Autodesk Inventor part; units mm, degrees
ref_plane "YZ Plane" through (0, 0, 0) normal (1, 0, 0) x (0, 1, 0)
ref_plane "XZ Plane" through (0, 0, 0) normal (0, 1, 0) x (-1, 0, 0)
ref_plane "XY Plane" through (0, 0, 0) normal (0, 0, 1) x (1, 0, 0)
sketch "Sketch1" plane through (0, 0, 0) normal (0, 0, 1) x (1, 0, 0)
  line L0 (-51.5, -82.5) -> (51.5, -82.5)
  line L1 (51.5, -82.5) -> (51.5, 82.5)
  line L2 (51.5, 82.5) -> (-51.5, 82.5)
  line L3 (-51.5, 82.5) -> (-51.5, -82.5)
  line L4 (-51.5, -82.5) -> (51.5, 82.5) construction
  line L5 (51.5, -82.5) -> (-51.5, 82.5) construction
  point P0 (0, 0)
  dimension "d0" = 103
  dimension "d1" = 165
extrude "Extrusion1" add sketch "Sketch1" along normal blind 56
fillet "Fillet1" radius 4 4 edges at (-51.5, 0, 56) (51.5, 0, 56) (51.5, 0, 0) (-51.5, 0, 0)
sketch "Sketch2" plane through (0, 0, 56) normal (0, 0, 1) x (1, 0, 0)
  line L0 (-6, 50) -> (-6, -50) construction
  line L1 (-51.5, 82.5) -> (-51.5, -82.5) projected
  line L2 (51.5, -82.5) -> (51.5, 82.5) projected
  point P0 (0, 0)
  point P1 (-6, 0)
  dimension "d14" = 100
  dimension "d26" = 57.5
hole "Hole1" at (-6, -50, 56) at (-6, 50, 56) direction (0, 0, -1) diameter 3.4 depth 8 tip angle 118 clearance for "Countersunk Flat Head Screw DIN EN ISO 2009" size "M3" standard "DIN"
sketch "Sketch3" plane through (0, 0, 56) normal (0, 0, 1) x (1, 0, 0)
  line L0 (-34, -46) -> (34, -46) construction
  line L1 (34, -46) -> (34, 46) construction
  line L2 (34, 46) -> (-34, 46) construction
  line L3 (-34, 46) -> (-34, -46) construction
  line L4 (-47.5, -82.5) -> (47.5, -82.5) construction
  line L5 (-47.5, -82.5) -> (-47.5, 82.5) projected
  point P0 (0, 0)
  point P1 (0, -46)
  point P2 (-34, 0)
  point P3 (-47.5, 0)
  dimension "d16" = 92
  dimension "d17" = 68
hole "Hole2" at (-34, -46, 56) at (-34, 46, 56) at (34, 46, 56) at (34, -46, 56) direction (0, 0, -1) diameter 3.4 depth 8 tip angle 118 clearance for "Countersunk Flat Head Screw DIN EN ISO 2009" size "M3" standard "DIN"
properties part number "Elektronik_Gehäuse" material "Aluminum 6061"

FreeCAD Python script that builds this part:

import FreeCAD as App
import Part
import Sketcher


def edges_at(feature, points):
    """Names of the edges that pass closest to the given points."""
    edges = feature.Shape.Edges
    near = lambda p: min(range(len(edges)), key=lambda i: edges[i].distToShape(Part.Vertex(*p))[0])
    return sorted({f"Edge{near(p) + 1}" for p in points})


def add_polygon(sketch, points):
    """Adds a closed chain of lines whose ends are joined by coincident constraints."""
    first, n = sketch.GeometryCount, len(points)
    for a, b in zip(points, points[1:] + points[:1]):
        sketch.addGeometry(Part.LineSegment(App.Vector(*a, 0), App.Vector(*b, 0)), False)
    for i in range(n):
        sketch.addConstraint(Sketcher.Constraint("Coincident", first + i, 2, first + (i + 1) % n, 1))

doc = App.newDocument("Part")
body = doc.addObject("PartDesign::Body", "Body")

sketch1 = doc.addObject("Sketcher::SketchObject", "Sketch")
body.addObject(sketch1)
sketch1.AttachmentSupport = (doc.XY_Plane, [""])
sketch1.MapMode = "FlatFace"
add_polygon(sketch1, [(-51.5, 82.5), (-51.5, -82.5), (51.5, -82.5), (51.5, 82.5)])
sketch1.addConstraint([
    Sketcher.Constraint("Vertical", 0),
    Sketcher.Constraint("Horizontal", 1),
    Sketcher.Constraint("Vertical", 2),
    Sketcher.Constraint("Horizontal", 3),
    Sketcher.Constraint("Symmetric", 0, 2, 2, 2, -1, 1),
    Sketcher.Constraint("DistanceX", 1, 1, 1, 2, 103.0),
    Sketcher.Constraint("DistanceY", 0, 2, 0, 1, 165.0),
])
pad1 = doc.addObject("PartDesign::Pad", "Pad")
body.addObject(pad1)
pad1.Profile = sketch1
pad1.Length = 56
doc.recompute()

fillet = doc.addObject("PartDesign::Fillet", "Fillet")
body.addObject(fillet)
fillet.Base = (pad1, edges_at(pad1, [
    (-51.5, 0, 56),
    (51.5, 0, 56),
    (51.5, 0, 0),
    (-51.5, 0, 0),
]))
fillet.Radius = 4

sketch2 = doc.addObject("Sketcher::SketchObject", "Sketch001")
body.addObject(sketch2)
sketch2.AttachmentSupport = (doc.XY_Plane, [""])
sketch2.MapMode = "FlatFace"
sketch2.AttachmentOffset = App.Placement(App.Vector(0, 0, 56), App.Rotation())
sketch2.addGeometry([
    Part.Circle(App.Vector(-6, -50, 0), App.Vector(0, 0, 1), 1.7),
    Part.Circle(App.Vector(-6, 50, 0), App.Vector(0, 0, 1), 1.7),
], False)
sketch2.addConstraint([
    Sketcher.Constraint("Equal", 0, 1),
    Sketcher.Constraint("Symmetric", 0, 3, 1, 3, -1),
    Sketcher.Constraint("Diameter", 0, 3.4),
    Sketcher.Constraint("DistanceX", 0, 3, -1, 1, 6.0),
    Sketcher.Constraint("DistanceY", 0, 3, -1, 1, 50.0),
])
doc.recompute()
hole = doc.addObject("PartDesign::Hole", "Hole")
body.addObject(hole)
hole.Profile = sketch2
hole.ThreadType = "None"
hole.Diameter = 3.4
hole.DepthType = "Dimension"
hole.Depth = 8
hole.DrillPoint = "Angled"
hole.DrillPointAngle = 118

sketch3 = doc.addObject("Sketcher::SketchObject", "Sketch002")
body.addObject(sketch3)
sketch3.AttachmentSupport = (doc.XY_Plane, [""])
sketch3.MapMode = "FlatFace"
sketch3.AttachmentOffset = App.Placement(App.Vector(0, 0, 56), App.Rotation())
sketch3.addGeometry([
    Part.Circle(App.Vector(-34, -46, 0), App.Vector(0, 0, 1), 1.7),
    Part.Circle(App.Vector(-34, 46, 0), App.Vector(0, 0, 1), 1.7),
    Part.Circle(App.Vector(34, 46, 0), App.Vector(0, 0, 1), 1.7),
    Part.Circle(App.Vector(34, -46, 0), App.Vector(0, 0, 1), 1.7),
], False)
sketch3.addConstraint([
    Sketcher.Constraint("Equal", 0, 1),
    Sketcher.Constraint("Equal", 1, 2),
    Sketcher.Constraint("Equal", 2, 3),
    Sketcher.Constraint("Symmetric", 0, 3, 2, 3, -1, 1),
    Sketcher.Constraint("Symmetric", 1, 3, 3, 3, -1, 1),
    Sketcher.Constraint("Symmetric", 1, 3, 2, 3, -2),
    Sketcher.Constraint("Diameter", 0, 3.4),
    Sketcher.Constraint("DistanceX", 0, 3, -1, 1, 34.0),
    Sketcher.Constraint("DistanceY", 0, 3, -1, 1, 46.0),
])
doc.recompute()
hole2 = doc.addObject("PartDesign::Hole", "Hole001")
body.addObject(hole2)
hole2.Profile = sketch3
hole2.ThreadType = "None"
hole2.Diameter = 3.4
hole2.DepthType = "Dimension"
hole2.Depth = 8
hole2.DrillPoint = "Angled"
hole2.DrillPointAngle = 118

doc.recompute()
